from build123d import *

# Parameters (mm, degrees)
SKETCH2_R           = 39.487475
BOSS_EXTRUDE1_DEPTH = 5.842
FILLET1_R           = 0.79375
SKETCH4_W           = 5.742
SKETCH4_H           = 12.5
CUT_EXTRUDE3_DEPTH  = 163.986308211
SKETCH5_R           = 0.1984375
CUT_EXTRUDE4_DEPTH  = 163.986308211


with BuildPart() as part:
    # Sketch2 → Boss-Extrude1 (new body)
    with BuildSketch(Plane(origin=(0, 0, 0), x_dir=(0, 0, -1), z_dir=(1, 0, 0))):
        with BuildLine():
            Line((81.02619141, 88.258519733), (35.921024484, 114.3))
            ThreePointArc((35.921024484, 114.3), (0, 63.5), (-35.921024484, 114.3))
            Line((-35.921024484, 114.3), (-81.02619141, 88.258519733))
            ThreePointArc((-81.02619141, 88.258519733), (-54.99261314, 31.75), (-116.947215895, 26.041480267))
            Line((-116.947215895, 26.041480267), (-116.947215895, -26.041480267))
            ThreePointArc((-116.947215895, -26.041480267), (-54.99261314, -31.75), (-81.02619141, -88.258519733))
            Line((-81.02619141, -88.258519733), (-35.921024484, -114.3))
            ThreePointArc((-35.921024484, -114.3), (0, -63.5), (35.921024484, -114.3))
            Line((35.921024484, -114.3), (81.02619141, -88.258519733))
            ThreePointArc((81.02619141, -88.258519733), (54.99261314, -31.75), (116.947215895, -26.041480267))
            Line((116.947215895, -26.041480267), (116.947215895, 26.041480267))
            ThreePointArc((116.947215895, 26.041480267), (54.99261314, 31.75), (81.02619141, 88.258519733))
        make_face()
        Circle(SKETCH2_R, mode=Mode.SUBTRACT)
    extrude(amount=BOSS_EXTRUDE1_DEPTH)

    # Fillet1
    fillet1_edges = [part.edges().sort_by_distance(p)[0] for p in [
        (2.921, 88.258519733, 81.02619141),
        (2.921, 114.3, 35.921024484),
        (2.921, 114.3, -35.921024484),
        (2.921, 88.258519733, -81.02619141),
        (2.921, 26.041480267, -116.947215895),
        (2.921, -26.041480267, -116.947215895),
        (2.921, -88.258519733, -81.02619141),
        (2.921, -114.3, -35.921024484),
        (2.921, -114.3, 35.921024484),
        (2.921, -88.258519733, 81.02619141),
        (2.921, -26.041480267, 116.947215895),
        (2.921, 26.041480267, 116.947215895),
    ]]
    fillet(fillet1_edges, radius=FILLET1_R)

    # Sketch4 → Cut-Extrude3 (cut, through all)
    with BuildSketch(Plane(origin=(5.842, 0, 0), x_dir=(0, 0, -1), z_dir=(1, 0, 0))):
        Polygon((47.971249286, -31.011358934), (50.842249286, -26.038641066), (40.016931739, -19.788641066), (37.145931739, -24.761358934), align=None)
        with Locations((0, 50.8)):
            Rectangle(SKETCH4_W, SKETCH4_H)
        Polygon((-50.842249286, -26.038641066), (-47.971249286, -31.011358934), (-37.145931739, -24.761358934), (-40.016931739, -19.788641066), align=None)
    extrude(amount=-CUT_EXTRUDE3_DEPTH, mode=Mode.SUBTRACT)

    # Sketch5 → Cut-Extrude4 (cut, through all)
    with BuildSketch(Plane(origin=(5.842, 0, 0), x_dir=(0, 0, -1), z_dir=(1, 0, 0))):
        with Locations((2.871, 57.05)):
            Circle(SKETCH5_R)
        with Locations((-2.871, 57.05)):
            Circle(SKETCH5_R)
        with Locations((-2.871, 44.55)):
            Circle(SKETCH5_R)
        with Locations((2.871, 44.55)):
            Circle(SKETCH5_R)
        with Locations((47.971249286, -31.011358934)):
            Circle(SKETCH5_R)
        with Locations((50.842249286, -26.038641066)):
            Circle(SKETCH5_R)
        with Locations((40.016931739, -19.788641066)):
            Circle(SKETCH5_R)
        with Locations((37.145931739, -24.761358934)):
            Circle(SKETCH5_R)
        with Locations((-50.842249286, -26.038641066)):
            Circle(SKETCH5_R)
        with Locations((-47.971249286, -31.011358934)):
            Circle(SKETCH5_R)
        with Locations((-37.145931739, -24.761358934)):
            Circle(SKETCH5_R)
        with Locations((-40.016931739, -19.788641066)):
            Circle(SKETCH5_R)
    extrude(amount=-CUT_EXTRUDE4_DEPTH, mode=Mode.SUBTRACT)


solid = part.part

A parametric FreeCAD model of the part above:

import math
import FreeCAD as App
import Part
import Sketcher
from FreeCAD import Vector
Q = App.Units.Quantity


def edges_at(feature, points):
    """Names of the edges that pass closest to the given points."""
    edges = feature.Shape.Edges
    near = lambda p: min(range(len(edges)), key=lambda i: edges[i].distToShape(Part.Vertex(*p))[0])
    return sorted({f"Edge{near(p) + 1}" for p in points})

doc = App.newDocument("Part")
body = doc.addObject("PartDesign::Body", "Body")

sketch1 = doc.addObject("Sketcher::SketchObject", "Sketch")
body.addObject(sketch1)
sketch1.AttachmentSupport = (doc.YZ_Plane, [""])
sketch1.MapMode = "FlatFace"
sketch1.addGeometry([
    Part.LineSegment(Vector(88.25852, -81.026191, 0), Vector(114.3, -35.921024, 0)),
    Part.ArcOfCircle(Part.Circle(Vector(101.6, 0, 0), Vector(0, 0, 1), 38.1), math.radians(70.528779), math.radians(289.471221)),
    Part.LineSegment(Vector(114.3, 35.921024, 0), Vector(88.25852, 81.026191, 0)),
    Part.ArcOfCircle(Part.Circle(Vector(50.8, 87.988181, 0), Vector(0, 0, 1), 38.1), math.radians(130.528779), math.radians(349.471221)),
    Part.LineSegment(Vector(26.04148, 116.947216, 0), Vector(-26.04148, 116.947216, 0)),
    Part.ArcOfCircle(Part.Circle(Vector(-50.8, 87.988181, 0), Vector(0, 0, 1), 38.1), math.radians(-169.471221), math.radians(49.471221)),
    Part.LineSegment(Vector(-88.25852, 81.026191, 0), Vector(-114.3, 35.921024, 0)),
    Part.ArcOfCircle(Part.Circle(Vector(-101.6, 0, 0), Vector(0, 0, 1), 38.1), math.radians(-109.471221), math.radians(109.471221)),
    Part.LineSegment(Vector(-114.3, -35.921024, 0), Vector(-88.25852, -81.026191, 0)),
    Part.ArcOfCircle(Part.Circle(Vector(-50.8, -87.988181, 0), Vector(0, 0, 1), 38.1), math.radians(-49.471221), math.radians(169.471221)),
    Part.LineSegment(Vector(-26.04148, -116.947216, 0), Vector(26.04148, -116.947216, 0)),
    Part.ArcOfCircle(Part.Circle(Vector(50.8, -87.988181, 0), Vector(0, 0, 1), 38.1), math.radians(10.528779), math.radians(229.471221)),
    Part.Circle(Vector(0, 0, 0), Vector(0, 0, 1), 39.487475),
], False)
sketch1.addConstraint([
    Sketcher.Constraint("Coincident", 0, 2, 1, 2),
    Sketcher.Constraint("Coincident", 1, 1, 2, 1),
    Sketcher.Constraint("Coincident", 2, 2, 3, 2),
    Sketcher.Constraint("Coincident", 3, 1, 4, 1),
    Sketcher.Constraint("Coincident", 4, 2, 5, 2),
    Sketcher.Constraint("Coincident", 5, 1, 6, 1),
    Sketcher.Constraint("Coincident", 6, 2, 7, 2),
    Sketcher.Constraint("Coincident", 7, 1, 8, 1),
    Sketcher.Constraint("Coincident", 8, 2, 9, 2),
    Sketcher.Constraint("Coincident", 9, 1, 10, 1),
    Sketcher.Constraint("Coincident", 10, 2, 11, 2),
    Sketcher.Constraint("Coincident", 11, 1, 0, 1),
    Sketcher.Constraint("Horizontal", 4),
    Sketcher.Constraint("Horizontal", 10),
    Sketcher.Constraint("Coincident", 12, 3, -1, 1),
    Sketcher.Constraint("Equal", 1, 3),
    Sketcher.Constraint("Equal", 3, 5),
    Sketcher.Constraint("Equal", 5, 7),
    Sketcher.Constraint("Equal", 7, 9),
    Sketcher.Constraint("Equal", 9, 11),
    Sketcher.Constraint("Symmetric", 1, 3, 7, 3, -1, 1),
    Sketcher.Constraint("Symmetric", 3, 3, 9, 3, -1, 1),
    Sketcher.Constraint("Symmetric", 5, 3, 11, 3, -1, 1),
    Sketcher.Constraint("Symmetric", 3, 3, 5, 3, -2),
    Sketcher.Constraint("Symmetric", 1, 1, 6, 2, -2),
    Sketcher.Constraint("Parallel", 0, 6),
    Sketcher.Constraint("Parallel", 2, 8),
    Sketcher.Constraint("Horizontal", 2, 2, 5, 1),
    Sketcher.Constraint("Horizontal", 0, 2, 7, 1),
    Sketcher.Constraint("Vertical", 0, 2, 1, 1),
    Sketcher.Constraint("Vertical", 4, 2, 9, 1),
    Sketcher.Constraint("Radius", 1, Q("1.5 in")),
    Sketcher.Constraint("DistanceX", -1, 1, 1, 3, Q("4 in")),
    Sketcher.Constraint("DistanceX", -1, 1, 3, 3, Q("2 in")),
    Sketcher.Constraint("Angle", 0, Q("60 deg")),
    Sketcher.Constraint("DistanceX", -1, 1, 0, 2, Q("4.5 in")),
    Sketcher.Constraint("DistanceX", 4, 2, 2, 2, Q("4.5 in")),
    Sketcher.Constraint("Diameter", 12, 78.97495),
    Sketcher.Constraint("DistanceX", 4, 2, 4, 1, 52.082961),
])
pad1 = doc.addObject("PartDesign::Pad", "Pad")
body.addObject(pad1)
pad1.Profile = sketch1
pad1.Length = Q("0.23 in")
doc.recompute()

fillet = doc.addObject("PartDesign::Fillet", "Fillet")
body.addObject(fillet)
fillet.Base = (pad1, edges_at(pad1, [
    (2.921, 88.259, 81.026),
    (2.921, 114.3, 35.921),
    (2.921, 114.3, -35.921),
    (2.921, 88.259, -81.026),
    (2.921, 26.041, -116.947),
    (2.921, -26.041, -116.947),
    (2.921, -88.259, -81.026),
    (2.921, -114.3, -35.921),
    (2.921, -114.3, 35.921),
    (2.921, -88.259, 81.026),
    (2.921, -26.041, 116.947),
    (2.921, 26.041, 116.947),
]))
fillet.Radius = Q("0.03125 in")

sketch2 = doc.addObject("Sketcher::SketchObject", "Sketch001")
body.addObject(sketch2)
sketch2.AttachmentSupport = (doc.YZ_Plane, [""])
sketch2.MapMode = "FlatFace"
sketch2.AttachmentOffset = App.Placement(Vector(0, 0, 0.23 * 25.4), App.Rotation())
sketch2.addGeometry([
    Part.LineSegment(Vector(-31.011359, -47.971249, 0), Vector(-26.038641, -50.842249, 0)),
    Part.LineSegment(Vector(-26.038641, -50.842249, 0), Vector(-19.788641, -40.016932, 0)),
    Part.LineSegment(Vector(-19.788641, -40.016932, 0), Vector(-24.761359, -37.145932, 0)),
    Part.LineSegment(Vector(-24.761359, -37.145932, 0), Vector(-31.011359, -47.971249, 0)),
    Part.LineSegment(Vector(57.05, 2.871, 0), Vector(44.55, 2.871, 0)),
    Part.LineSegment(Vector(44.55, 2.871, 0), Vector(44.55, -2.871, 0)),
    Part.LineSegment(Vector(44.55, -2.871, 0), Vector(57.05, -2.871, 0)),
    Part.LineSegment(Vector(57.05, -2.871, 0), Vector(57.05, 2.871, 0)),
    Part.LineSegment(Vector(-26.038641, 50.842249, 0), Vector(-31.011359, 47.971249, 0)),
    Part.LineSegment(Vector(-31.011359, 47.971249, 0), Vector(-24.761359, 37.145932, 0)),
    Part.LineSegment(Vector(-24.761359, 37.145932, 0), Vector(-19.788641, 40.016932, 0)),
    Part.LineSegment(Vector(-19.788641, 40.016932, 0), Vector(-26.038641, 50.842249, 0)),
], False)
sketch2.addConstraint([
    Sketcher.Constraint("Coincident", 0, 2, 1, 1),
    Sketcher.Constraint("Coincident", 1, 2, 2, 1),
    Sketcher.Constraint("Coincident", 2, 2, 3, 1),
    Sketcher.Constraint("Coincident", 3, 2, 0, 1),
    Sketcher.Constraint("Coincident", 4, 2, 5, 1),
    Sketcher.Constraint("Coincident", 5, 2, 6, 1),
    Sketcher.Constraint("Coincident", 6, 2, 7, 1),
    Sketcher.Constraint("Coincident", 7, 2, 4, 1),
    Sketcher.Constraint("Coincident", 8, 2, 9, 1),
    Sketcher.Constraint("Coincident", 9, 2, 10, 1),
    Sketcher.Constraint("Coincident", 10, 2, 11, 1),
    Sketcher.Constraint("Coincident", 11, 2, 8, 1),
    Sketcher.Constraint("Horizontal", 4),
    Sketcher.Constraint("Vertical", 5),
    Sketcher.Constraint("Horizontal", 6),
    Sketcher.Constraint("Vertical", 7),
    Sketcher.Constraint("Symmetric", 3, 2, 8, 2, -1),
    Sketcher.Constraint("Symmetric", 2, 2, 9, 2, -1),
    Sketcher.Constraint("Symmetric", 1, 2, 10, 2, -1),
    Sketcher.Constraint("Symmetric", 0, 2, 11, 2, -1),
    Sketcher.Constraint("Perpendicular", 0, 1),
    Sketcher.Constraint("Perpendicular", 1, 2),
    Sketcher.Constraint("Perpendicular", 2, 3),
    Sketcher.Constraint("Angle", 0, Q("-30 deg")),
    Sketcher.Constraint("DistanceX", 4, 2, 4, 1, 12.5),
    Sketcher.Constraint("DistanceY", 5, 2, 5, 1, 5.742),
    Sketcher.Constraint("Distance", 0, 5.742),
    Sketcher.Constraint("Distance", 1, 12.5),
    Sketcher.Constraint("DistanceX", -1, 1, 4, 2, 44.55),
    Sketcher.Constraint("DistanceY", -1, 1, 4, 2, 2.871),
    Sketcher.Constraint("DistanceY", 3, 2, 8, 2, 95.942499),
    Sketcher.Constraint("DistanceX", 0, 2, -1, 1, 26.038641),
])
pocket1 = doc.addObject("PartDesign::Pocket", "Pocket")
body.addObject(pocket1)
pocket1.Profile = sketch2
pocket1.Type = "ThroughAll"

sketch3 = doc.addObject("Sketcher::SketchObject", "Sketch002")
body.addObject(sketch3)
sketch3.AttachmentSupport = (doc.YZ_Plane, [""])
sketch3.MapMode = "FlatFace"
sketch3.AttachmentOffset = App.Placement(Vector(0, 0, 0.23 * 25.4), App.Rotation())
sketch3.addGeometry([
    Part.Circle(Vector(57.05, -2.871, 0), Vector(0, 0, 1), 0.198437),
    Part.Circle(Vector(57.05, 2.871, 0), Vector(0, 0, 1), 0.198437),
    Part.Circle(Vector(44.55, 2.871, 0), Vector(0, 0, 1), 0.198437),
    Part.Circle(Vector(44.55, -2.871, 0), Vector(0, 0, 1), 0.198437),
    Part.Circle(Vector(-31.011359, -47.971249, 0), Vector(0, 0, 1), 0.198437),
    Part.Circle(Vector(-26.038641, -50.842249, 0), Vector(0, 0, 1), 0.198437),
    Part.Circle(Vector(-19.788641, -40.016932, 0), Vector(0, 0, 1), 0.198437),
    Part.Circle(Vector(-24.761359, -37.145932, 0), Vector(0, 0, 1), 0.198437),
    Part.Circle(Vector(-26.038641, 50.842249, 0), Vector(0, 0, 1), 0.198437),
    Part.Circle(Vector(-31.011359, 47.971249, 0), Vector(0, 0, 1), 0.198437),
    Part.Circle(Vector(-24.761359, 37.145932, 0), Vector(0, 0, 1), 0.198437),
    Part.Circle(Vector(-19.788641, 40.016932, 0), Vector(0, 0, 1), 0.198437),
], False)
sketch3.addConstraint([
    Sketcher.Constraint("Equal", 0, 1),
    Sketcher.Constraint("Equal", 1, 2),
    Sketcher.Constraint("Equal", 2, 3),
    Sketcher.Constraint("Equal", 3, 4),
    Sketcher.Constraint("Equal", 4, 5),
    Sketcher.Constraint("Equal", 5, 6),
    Sketcher.Constraint("Equal", 6, 7),
    Sketcher.Constraint("Equal", 7, 8),
    Sketcher.Constraint("Equal", 8, 9),
    Sketcher.Constraint("Equal", 9, 10),
    Sketcher.Constraint("Equal", 10, 11),
    Sketcher.Constraint("Symmetric", 0, 3, 1, 3, -1),
    Sketcher.Constraint("Symmetric", 2, 3, 3, 3, -1),
    Sketcher.Constraint("Symmetric", 5, 3, 8, 3, -1),
    Sketcher.Constraint("Symmetric", 4, 3, 9, 3, -1),
    Sketcher.Constraint("Symmetric", 7, 3, 10, 3, -1),
    Sketcher.Constraint("Symmetric", 6, 3, 11, 3, -1),
    Sketcher.Constraint("Horizontal", 1, 3, 2, 3),
    Sketcher.Constraint("Diameter", 0, Q("0.015625 in")),
    Sketcher.Constraint("DistanceX", -1, 1, 0, 3, 57.05),
    Sketcher.Constraint("DistanceY", 0, 3, -1, 1, 2.871),
    Sketcher.Constraint("DistanceX", -1, 1, 2, 3, 44.55),
    Sketcher.Constraint("DistanceY", 5, 3, 4, 3, 2.871),
    Sketcher.Constraint("DistanceX", 5, 3, 6, 3, 6.25),
    Sketcher.Constraint("DistanceY", 6, 3, 7, 3, 2.871),
    Sketcher.Constraint("DistanceX", 4, 3, 7, 3, 6.25),
    Sketcher.Constraint("DistanceX", 4, 3, -1, 1, 31.011359),
    Sketcher.Constraint("DistanceY", 4, 3, -1, 1, 47.971249),
    Sketcher.Constraint("DistanceX", 5, 3, -1, 1, 26.038641),
    Sketcher.Constraint("DistanceY", 6, 3, -1, 1, 40.016932),
])
pocket2 = doc.addObject("PartDesign::Pocket", "Pocket001")
body.addObject(pocket2)
pocket2.Profile = sketch3
pocket2.Type = "ThroughAll"

doc.recompute()
